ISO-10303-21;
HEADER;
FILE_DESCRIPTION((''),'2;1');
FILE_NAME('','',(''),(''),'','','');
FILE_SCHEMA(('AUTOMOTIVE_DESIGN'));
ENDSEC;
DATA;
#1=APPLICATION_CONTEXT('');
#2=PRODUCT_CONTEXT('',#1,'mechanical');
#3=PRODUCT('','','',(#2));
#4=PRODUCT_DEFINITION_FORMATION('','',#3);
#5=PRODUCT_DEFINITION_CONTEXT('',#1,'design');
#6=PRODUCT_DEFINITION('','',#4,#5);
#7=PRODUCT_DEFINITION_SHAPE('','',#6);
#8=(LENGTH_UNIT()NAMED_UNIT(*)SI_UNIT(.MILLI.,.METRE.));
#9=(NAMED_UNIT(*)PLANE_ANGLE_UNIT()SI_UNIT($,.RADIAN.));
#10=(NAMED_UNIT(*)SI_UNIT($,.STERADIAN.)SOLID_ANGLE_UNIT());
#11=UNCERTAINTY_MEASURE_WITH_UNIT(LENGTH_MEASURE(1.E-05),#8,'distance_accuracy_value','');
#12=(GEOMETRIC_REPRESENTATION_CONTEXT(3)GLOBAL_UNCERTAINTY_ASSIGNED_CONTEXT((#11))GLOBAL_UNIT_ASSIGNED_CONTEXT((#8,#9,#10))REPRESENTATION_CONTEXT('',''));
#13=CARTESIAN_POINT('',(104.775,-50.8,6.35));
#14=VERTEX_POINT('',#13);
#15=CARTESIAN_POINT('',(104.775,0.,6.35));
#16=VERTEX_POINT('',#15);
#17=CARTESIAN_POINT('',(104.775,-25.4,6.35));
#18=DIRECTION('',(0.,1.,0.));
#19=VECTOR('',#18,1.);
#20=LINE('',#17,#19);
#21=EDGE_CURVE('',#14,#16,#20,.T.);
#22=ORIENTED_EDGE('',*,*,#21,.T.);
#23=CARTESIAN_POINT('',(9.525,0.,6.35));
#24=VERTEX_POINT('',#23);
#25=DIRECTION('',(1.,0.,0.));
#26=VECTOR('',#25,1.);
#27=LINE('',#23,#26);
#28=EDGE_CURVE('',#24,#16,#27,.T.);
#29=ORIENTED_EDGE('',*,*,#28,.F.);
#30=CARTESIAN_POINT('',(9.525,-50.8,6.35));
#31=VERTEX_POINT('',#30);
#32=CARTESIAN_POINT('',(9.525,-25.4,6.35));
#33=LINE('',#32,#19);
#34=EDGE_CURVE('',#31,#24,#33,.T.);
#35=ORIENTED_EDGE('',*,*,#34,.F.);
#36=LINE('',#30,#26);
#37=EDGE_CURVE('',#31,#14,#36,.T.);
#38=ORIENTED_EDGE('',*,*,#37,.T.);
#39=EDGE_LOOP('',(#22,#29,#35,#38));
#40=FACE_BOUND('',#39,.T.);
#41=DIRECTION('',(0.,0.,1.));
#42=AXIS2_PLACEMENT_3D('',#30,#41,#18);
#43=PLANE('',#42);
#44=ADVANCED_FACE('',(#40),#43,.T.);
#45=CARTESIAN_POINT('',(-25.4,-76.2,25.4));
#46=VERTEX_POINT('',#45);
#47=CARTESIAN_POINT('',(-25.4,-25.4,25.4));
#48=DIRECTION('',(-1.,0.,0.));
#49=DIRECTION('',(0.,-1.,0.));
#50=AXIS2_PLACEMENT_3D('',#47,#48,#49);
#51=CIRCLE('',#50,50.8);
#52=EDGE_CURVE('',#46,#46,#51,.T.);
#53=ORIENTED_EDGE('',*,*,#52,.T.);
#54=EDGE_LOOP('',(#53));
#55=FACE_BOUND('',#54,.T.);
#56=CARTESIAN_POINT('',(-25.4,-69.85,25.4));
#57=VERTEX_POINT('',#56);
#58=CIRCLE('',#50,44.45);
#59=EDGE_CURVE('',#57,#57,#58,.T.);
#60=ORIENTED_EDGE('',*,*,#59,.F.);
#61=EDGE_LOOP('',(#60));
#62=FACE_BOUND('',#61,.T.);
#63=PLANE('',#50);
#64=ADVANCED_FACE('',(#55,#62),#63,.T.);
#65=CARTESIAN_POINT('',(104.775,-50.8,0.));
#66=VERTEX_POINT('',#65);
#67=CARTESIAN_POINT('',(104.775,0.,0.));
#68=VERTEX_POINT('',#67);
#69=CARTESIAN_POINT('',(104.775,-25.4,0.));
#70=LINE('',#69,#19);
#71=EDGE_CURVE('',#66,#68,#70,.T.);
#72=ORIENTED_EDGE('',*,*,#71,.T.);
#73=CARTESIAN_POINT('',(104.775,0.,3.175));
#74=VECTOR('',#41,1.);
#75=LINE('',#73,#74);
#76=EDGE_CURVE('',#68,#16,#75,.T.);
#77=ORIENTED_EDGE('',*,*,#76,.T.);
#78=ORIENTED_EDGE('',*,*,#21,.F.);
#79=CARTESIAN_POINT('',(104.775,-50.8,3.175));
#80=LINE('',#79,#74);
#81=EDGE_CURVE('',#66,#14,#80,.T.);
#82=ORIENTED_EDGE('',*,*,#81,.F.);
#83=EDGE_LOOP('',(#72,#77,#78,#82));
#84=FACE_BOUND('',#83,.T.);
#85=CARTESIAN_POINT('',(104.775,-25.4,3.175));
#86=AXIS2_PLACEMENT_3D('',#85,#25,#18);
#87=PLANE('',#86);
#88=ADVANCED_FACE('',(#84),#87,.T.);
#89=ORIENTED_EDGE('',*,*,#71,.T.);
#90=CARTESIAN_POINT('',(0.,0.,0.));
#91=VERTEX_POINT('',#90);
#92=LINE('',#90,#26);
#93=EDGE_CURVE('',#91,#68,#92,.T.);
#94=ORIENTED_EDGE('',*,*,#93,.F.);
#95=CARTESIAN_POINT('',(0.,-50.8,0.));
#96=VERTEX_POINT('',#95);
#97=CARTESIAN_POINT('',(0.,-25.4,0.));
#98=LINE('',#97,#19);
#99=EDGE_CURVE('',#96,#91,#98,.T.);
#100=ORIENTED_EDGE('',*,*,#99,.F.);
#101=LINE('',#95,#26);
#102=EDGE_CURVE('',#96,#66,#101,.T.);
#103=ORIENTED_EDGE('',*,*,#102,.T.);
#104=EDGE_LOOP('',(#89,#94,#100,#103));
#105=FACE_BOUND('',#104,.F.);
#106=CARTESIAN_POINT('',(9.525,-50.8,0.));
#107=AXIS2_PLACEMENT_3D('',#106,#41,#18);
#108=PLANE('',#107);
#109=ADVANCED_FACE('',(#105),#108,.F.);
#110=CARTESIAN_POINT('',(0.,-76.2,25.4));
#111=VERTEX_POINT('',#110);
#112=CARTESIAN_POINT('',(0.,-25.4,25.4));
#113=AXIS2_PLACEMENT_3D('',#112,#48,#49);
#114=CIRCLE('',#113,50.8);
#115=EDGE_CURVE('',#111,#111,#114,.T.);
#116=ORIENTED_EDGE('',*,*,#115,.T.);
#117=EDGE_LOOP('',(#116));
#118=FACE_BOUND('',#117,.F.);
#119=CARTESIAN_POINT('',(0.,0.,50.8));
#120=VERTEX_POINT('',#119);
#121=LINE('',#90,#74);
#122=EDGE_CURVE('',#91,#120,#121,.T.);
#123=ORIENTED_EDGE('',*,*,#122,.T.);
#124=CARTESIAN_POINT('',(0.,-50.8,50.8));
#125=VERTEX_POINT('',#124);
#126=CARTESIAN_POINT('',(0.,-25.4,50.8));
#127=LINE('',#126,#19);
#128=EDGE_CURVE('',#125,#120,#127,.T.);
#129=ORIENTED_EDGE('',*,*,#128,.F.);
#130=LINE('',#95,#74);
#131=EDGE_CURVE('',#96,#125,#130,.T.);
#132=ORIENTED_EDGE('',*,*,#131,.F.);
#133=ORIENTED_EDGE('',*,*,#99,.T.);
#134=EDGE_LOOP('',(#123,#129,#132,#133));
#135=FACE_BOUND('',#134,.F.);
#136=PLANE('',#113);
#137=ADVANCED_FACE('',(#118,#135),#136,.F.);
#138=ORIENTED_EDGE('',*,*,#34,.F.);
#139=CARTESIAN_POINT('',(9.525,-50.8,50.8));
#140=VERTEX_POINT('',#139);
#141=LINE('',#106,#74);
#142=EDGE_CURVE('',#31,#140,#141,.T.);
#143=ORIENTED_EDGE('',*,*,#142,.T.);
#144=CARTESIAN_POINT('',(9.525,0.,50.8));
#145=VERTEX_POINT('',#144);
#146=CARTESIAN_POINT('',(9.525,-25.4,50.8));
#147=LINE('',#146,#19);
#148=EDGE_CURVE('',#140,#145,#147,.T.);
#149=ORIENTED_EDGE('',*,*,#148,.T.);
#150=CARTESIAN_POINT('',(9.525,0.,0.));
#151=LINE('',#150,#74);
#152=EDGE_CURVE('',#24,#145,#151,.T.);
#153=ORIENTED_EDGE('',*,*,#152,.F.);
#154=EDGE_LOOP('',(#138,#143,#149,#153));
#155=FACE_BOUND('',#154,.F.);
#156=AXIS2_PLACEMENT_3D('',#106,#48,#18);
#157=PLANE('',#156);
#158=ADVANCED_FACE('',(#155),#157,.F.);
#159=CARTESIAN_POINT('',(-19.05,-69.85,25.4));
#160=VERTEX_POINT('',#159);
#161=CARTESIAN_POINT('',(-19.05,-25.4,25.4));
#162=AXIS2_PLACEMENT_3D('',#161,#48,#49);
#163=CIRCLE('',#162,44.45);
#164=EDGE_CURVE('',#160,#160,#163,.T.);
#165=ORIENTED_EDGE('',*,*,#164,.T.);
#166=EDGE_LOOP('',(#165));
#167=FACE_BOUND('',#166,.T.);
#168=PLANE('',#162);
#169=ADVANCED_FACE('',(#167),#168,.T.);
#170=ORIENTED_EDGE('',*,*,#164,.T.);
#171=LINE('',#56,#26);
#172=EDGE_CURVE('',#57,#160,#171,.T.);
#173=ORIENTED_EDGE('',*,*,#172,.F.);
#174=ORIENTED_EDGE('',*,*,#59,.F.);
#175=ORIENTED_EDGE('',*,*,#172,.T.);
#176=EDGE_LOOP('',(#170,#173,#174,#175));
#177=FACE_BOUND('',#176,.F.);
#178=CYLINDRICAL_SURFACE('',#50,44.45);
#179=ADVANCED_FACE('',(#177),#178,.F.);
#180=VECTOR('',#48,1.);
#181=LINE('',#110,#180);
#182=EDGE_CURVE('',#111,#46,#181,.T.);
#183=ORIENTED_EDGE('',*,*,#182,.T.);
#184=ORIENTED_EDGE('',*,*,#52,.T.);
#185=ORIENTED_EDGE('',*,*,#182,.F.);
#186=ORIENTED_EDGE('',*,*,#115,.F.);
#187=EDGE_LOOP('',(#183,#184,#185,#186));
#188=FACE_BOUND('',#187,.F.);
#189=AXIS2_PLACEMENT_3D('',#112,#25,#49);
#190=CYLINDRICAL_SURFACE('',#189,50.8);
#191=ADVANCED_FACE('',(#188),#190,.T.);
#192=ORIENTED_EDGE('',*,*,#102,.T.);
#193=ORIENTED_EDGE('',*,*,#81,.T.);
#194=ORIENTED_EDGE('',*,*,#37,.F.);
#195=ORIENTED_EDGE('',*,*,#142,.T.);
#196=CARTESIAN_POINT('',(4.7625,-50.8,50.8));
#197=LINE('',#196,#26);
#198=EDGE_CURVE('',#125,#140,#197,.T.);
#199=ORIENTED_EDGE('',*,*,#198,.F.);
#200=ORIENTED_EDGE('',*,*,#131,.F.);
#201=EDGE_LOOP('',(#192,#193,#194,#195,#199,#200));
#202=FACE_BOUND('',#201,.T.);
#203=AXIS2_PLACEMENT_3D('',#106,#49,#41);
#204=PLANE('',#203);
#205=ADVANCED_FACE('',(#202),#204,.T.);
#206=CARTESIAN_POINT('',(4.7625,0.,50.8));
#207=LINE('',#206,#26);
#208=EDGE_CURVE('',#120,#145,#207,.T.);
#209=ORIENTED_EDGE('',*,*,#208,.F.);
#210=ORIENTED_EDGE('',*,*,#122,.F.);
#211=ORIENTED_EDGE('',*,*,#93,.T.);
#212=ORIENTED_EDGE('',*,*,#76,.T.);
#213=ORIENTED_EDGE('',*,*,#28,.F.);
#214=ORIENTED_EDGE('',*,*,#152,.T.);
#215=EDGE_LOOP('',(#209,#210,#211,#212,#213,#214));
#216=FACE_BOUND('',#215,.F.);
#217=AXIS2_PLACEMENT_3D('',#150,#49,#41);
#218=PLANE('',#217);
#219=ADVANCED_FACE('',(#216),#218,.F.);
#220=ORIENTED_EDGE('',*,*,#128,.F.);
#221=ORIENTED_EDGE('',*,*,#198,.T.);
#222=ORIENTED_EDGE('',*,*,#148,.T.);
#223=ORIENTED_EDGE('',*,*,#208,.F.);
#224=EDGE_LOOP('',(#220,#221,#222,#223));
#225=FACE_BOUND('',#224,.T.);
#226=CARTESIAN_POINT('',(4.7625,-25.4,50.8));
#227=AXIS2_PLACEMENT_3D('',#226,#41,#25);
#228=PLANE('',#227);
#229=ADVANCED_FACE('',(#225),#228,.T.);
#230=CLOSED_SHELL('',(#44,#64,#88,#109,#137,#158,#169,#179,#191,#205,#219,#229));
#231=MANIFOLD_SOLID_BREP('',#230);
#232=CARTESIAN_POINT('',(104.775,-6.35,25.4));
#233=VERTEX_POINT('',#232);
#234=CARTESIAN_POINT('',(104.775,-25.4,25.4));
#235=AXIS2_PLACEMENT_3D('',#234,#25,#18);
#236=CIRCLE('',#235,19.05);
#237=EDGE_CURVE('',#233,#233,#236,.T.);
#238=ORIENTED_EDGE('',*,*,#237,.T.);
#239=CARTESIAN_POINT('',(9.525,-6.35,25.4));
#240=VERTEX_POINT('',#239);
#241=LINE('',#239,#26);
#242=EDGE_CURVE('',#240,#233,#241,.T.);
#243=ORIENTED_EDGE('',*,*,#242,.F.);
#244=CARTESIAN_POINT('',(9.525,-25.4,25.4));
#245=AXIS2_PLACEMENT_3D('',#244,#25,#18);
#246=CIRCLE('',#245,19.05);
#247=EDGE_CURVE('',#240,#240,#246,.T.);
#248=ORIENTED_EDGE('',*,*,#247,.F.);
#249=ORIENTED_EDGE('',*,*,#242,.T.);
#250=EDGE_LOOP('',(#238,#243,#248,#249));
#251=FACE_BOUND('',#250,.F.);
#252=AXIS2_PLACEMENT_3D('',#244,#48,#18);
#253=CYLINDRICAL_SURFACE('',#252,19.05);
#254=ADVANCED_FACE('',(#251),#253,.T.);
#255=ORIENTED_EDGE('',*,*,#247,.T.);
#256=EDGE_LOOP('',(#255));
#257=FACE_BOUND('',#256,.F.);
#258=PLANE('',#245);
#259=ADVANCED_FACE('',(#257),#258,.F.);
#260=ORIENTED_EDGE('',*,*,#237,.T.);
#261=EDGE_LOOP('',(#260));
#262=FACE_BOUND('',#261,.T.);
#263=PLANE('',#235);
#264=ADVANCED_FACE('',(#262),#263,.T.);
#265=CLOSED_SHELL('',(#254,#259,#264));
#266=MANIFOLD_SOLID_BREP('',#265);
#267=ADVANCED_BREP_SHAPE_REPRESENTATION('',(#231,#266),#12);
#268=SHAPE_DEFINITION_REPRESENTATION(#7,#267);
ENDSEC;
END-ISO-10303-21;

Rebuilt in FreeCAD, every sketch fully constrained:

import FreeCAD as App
import Part
import Sketcher

V = App.Vector
Q = App.Units.Quantity


def add_polygon(sketch, points):
    """Adds a closed chain of lines whose ends are joined by coincident constraints."""
    first, n = sketch.GeometryCount, len(points)
    for a, b in zip(points, points[1:] + points[:1]):
        sketch.addGeometry(Part.LineSegment(App.Vector(*a, 0), App.Vector(*b, 0)), False)
    for i in range(n):
        sketch.addConstraint(Sketcher.Constraint("Coincident", first + i, 2, first + (i + 1) % n, 1))

doc = App.newDocument("Part")
body = doc.addObject("PartDesign::Body", "Body")

# Sketch on XY plane
sketch1 = body.newObject("Sketcher::SketchObject", "Sketch")
sketch1.AttachmentSupport = (doc.getObject("XY_Plane"), [""])
sketch1.MapMode = "FlatFace"
add_polygon(sketch1, [(0, 0), (0, -51), (10, -51), (10, 0)])  # lines 0-3
sketch1.addConstraint([
    Sketcher.Constraint("Vertical", 0),
    Sketcher.Constraint("Horizontal", 1),
    Sketcher.Constraint("Vertical", 2),
    Sketcher.Constraint("Horizontal", 3),
    Sketcher.Constraint("Coincident", 3, 2, -1, 1),
    Sketcher.Constraint("DistanceY", 0, 2, 0, 1, Q("2 in")),
    Sketcher.Constraint("DistanceX", 1, 1, 1, 2, Q("0.375 in")),
])
pad1 = body.newObject("PartDesign::Pad", "Pad")
pad1.Profile = sketch1
pad1.Length = Q("2 in")

# Sketch on YZ plane
sketch2 = body.newObject("Sketcher::SketchObject", "Sketch001")
sketch2.AttachmentSupport = (doc.getObject("YZ_Plane"), [""])
sketch2.MapMode = "FlatFace"
sketch2.AttachmentOffset = App.Placement(V(0, 0, 0.375 * 25.4), App.Rotation())
add_polygon(sketch2, [(-51, 6), (-51, 0), (0, 0), (0, 6)])  # lines 0-3
sketch2.addConstraint([
    Sketcher.Constraint("Vertical", 0),
    Sketcher.Constraint("Horizontal", 1),
    Sketcher.Constraint("Vertical", 2),
    Sketcher.Constraint("Horizontal", 3),
    Sketcher.Constraint("Coincident", 1, 2, -1, 1),
    Sketcher.Constraint("DistanceX", 1, 1, 1, 2, Q("2 in")),
    Sketcher.Constraint("DistanceY", 0, 2, 0, 1, Q("0.25 in")),
])
pad2 = body.newObject("PartDesign::Pad", "Pad001")
pad2.Profile = sketch2
pad2.Length = Q("3.75 in")

# Sketch on YZ plane
sketch3 = body.newObject("Sketcher::SketchObject", "Sketch002")
sketch3.AttachmentSupport = (doc.getObject("YZ_Plane"), [""])
sketch3.MapMode = "FlatFace"
sketch3.addGeometry(Part.Circle(V(-25, 25, 0), V(0, 0, 1), 51), False)
sketch3.addConstraint([
    Sketcher.Constraint("Diameter", 0, Q("4 in")),
    Sketcher.Constraint("DistanceX", 0, 3, -1, 1, Q("1 in")),
    Sketcher.Constraint("DistanceY", -1, 1, 0, 3, Q("1 in")),
])
pad3 = body.newObject("PartDesign::Pad", "Pad002")
pad3.Profile = sketch3
pad3.Length = Q("1 in")
pad3.Reversed = True

# Sketch on YZ plane
sketch4 = body.newObject("Sketcher::SketchObject", "Sketch003")
sketch4.AttachmentSupport = (doc.getObject("YZ_Plane"), [""])
sketch4.MapMode = "FlatFace"
sketch4.AttachmentOffset = App.Placement(V(0, 0, -1 * 25.4), App.Rotation())
sketch4.addGeometry(Part.Circle(V(-25, 25, 0), V(0, 0, 1), 44), False)
sketch4.addConstraint([
    Sketcher.Constraint("Diameter", 0, Q("3.5 in")),
    Sketcher.Constraint("DistanceX", 0, 3, -1, 1, Q("1 in")),
    Sketcher.Constraint("DistanceY", -1, 1, 0, 3, Q("1 in")),
])
pocket1 = body.newObject("PartDesign::Pocket", "Pocket")
pocket1.Profile = sketch4
pocket1.Length = Q("0.25 in")
pocket1.Reversed = True
body2 = doc.addObject("PartDesign::Body", "Body001")

# Sketch on YZ plane
sketch5 = body2.newObject("Sketcher::SketchObject", "Sketch004")
sketch5.AttachmentSupport = (doc.getObject("YZ_Plane001"), [""])
sketch5.MapMode = "FlatFace"
sketch5.AttachmentOffset = App.Placement(V(0, 0, 0.375 * 25.4), App.Rotation())
sketch5.addGeometry(Part.Circle(V(-25, 25, 0), V(0, 0, 1), 19), False)
sketch5.addConstraint([
    Sketcher.Constraint("Diameter", 0, Q("1.5 in")),
    Sketcher.Constraint("DistanceX", 0, 3, -1, 1, Q("1 in")),
    Sketcher.Constraint("DistanceY", -1, 1, 0, 3, Q("1 in")),
])
pad4 = body2.newObject("PartDesign::Pad", "Pad003")
pad4.Profile = sketch5
pad4.Length = Q("3.75 in")

doc.recompute()
